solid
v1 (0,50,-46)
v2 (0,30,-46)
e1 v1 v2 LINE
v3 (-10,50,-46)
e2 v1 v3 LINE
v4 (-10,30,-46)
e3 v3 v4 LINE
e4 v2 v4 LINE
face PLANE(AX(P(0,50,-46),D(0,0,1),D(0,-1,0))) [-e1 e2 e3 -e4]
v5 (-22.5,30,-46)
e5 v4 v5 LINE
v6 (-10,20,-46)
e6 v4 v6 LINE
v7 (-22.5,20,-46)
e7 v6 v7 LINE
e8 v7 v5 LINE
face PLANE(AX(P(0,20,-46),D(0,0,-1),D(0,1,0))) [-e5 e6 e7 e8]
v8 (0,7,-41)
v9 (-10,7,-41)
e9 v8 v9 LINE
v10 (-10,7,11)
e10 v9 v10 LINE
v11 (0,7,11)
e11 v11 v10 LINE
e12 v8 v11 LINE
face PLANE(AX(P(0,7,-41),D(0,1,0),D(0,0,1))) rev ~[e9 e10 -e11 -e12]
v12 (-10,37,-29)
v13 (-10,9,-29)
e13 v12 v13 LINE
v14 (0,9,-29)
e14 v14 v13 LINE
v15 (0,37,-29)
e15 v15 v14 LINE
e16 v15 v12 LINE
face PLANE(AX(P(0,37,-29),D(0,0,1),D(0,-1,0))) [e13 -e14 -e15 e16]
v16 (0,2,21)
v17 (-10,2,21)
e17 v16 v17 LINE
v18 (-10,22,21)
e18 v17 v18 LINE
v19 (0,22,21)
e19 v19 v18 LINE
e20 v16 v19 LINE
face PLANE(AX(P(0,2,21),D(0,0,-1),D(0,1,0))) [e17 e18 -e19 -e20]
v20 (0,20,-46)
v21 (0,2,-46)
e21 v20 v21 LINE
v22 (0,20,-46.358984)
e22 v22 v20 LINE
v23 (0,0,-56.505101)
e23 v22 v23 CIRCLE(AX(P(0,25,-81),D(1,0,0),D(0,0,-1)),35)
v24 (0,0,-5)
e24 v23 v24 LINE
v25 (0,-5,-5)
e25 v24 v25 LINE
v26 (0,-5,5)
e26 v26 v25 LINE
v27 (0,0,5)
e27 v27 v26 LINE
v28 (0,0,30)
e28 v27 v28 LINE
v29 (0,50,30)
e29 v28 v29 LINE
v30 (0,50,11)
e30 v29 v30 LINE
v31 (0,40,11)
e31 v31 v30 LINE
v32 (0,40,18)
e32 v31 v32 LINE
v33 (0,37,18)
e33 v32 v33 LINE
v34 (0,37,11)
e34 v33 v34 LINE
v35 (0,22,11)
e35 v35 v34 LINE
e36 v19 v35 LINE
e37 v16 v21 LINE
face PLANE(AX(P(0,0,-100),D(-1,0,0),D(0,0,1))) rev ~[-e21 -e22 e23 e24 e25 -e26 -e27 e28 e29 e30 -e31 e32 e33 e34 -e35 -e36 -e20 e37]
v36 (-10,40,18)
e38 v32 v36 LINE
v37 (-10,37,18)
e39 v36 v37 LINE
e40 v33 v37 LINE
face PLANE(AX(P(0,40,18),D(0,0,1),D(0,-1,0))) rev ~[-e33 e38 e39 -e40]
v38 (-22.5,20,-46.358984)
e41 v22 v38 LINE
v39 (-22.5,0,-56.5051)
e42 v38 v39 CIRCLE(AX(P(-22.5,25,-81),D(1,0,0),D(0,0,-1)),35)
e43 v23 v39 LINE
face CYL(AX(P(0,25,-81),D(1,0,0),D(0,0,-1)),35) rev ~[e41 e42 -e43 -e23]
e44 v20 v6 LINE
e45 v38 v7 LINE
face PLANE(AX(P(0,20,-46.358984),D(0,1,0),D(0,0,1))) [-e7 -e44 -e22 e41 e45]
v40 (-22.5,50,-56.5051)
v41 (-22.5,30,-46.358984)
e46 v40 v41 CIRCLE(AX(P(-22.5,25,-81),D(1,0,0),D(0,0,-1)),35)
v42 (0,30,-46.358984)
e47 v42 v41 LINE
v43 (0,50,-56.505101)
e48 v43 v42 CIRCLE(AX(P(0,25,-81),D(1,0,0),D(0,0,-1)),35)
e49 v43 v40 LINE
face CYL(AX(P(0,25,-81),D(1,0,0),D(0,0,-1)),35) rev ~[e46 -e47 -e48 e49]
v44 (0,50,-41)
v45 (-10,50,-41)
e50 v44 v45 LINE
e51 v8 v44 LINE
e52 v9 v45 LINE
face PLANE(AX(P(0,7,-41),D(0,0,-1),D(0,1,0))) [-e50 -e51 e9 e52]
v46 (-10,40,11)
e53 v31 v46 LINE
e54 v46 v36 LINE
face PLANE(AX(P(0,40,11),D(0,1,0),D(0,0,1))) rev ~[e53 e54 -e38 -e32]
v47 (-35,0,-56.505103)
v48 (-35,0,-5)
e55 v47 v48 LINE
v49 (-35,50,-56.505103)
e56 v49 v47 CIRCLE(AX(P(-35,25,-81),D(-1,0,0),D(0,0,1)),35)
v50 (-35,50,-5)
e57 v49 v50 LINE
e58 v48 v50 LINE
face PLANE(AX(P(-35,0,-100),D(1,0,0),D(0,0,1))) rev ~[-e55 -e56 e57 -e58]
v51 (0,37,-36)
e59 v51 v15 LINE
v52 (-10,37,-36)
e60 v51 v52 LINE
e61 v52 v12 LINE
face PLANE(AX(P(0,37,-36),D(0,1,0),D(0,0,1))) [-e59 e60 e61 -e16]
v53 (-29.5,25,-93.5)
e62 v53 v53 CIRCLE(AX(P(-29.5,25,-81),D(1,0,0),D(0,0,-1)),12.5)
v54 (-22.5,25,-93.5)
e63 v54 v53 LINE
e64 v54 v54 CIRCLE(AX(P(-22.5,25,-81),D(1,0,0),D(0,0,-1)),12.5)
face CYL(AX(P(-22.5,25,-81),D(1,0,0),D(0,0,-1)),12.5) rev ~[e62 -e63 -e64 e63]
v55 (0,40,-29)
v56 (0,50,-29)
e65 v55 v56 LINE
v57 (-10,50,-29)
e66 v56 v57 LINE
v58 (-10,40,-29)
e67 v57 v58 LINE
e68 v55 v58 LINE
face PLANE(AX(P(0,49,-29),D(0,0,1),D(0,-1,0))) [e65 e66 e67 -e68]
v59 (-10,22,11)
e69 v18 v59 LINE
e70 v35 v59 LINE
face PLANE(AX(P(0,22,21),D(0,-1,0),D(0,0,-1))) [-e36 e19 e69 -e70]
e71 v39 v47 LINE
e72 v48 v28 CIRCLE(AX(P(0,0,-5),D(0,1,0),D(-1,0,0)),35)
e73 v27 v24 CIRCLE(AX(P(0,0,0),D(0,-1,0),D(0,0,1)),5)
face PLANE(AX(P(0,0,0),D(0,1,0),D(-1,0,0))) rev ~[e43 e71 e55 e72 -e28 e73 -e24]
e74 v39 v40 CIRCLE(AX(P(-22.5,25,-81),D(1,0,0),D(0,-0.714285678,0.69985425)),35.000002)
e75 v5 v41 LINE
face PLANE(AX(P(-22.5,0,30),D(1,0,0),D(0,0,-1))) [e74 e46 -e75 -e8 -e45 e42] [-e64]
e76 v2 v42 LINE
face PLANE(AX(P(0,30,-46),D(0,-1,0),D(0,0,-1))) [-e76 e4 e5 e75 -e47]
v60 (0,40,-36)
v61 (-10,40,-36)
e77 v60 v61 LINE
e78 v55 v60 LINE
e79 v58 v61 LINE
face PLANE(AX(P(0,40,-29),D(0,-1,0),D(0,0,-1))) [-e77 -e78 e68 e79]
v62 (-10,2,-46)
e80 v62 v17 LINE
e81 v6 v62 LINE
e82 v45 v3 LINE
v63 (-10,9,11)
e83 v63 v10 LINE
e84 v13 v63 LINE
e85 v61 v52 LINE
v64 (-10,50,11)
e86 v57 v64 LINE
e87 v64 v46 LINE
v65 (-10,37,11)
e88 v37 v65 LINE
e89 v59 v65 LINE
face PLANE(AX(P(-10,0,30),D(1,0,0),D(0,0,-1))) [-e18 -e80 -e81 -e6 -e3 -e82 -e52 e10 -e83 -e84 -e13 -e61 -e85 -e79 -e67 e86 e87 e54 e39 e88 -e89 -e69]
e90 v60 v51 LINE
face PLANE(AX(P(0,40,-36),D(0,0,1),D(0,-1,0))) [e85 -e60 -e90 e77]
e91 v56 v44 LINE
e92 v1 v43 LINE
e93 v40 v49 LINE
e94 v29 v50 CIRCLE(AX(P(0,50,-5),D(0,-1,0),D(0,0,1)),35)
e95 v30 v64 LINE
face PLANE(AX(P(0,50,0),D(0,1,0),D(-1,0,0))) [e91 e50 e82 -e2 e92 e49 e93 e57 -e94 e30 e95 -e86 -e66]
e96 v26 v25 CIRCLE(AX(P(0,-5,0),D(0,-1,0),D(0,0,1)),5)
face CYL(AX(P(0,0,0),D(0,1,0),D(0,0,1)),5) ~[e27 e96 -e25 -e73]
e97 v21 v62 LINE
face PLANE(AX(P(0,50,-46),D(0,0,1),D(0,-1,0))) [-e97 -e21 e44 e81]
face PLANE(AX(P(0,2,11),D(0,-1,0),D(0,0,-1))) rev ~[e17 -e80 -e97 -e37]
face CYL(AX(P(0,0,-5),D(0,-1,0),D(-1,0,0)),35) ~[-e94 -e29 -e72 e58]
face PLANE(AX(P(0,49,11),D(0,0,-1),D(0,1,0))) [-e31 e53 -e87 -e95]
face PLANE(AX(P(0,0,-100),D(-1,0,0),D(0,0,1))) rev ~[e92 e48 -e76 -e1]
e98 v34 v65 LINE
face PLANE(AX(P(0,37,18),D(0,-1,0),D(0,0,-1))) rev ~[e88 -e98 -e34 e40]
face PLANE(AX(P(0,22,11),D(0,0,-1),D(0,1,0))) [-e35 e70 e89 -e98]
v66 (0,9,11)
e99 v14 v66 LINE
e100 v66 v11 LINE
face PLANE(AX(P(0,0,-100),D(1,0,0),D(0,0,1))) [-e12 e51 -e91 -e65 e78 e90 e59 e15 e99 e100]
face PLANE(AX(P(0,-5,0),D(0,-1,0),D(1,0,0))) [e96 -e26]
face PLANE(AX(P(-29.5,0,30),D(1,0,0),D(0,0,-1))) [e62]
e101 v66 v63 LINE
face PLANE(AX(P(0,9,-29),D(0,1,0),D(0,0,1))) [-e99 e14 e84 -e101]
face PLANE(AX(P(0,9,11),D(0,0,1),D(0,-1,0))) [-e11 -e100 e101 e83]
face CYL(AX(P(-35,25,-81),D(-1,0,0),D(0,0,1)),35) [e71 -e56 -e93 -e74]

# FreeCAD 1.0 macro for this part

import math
import FreeCAD as App
import Part
import Sketcher

V = App.Vector

doc = App.newDocument("Part")
body = doc.addObject("PartDesign::Body", "Body")

# Sketch on XZ plane
sketch1 = body.newObject("Sketcher::SketchObject", "Sketch")
sketch1.AttachmentSupport = (doc.getObject("XZ_Plane"), [""])
sketch1.MapMode = "FlatFace"
sketch1.addGeometry([
    Part.LineSegment(V(-35, -100, 0), V(-35, -5, 0)),
    Part.ArcOfCircle(Part.Circle(V(0, -5, 0), V(0, 0, 1), 35), math.radians(90), math.radians(180)),
    Part.LineSegment(V(0, 30, 0), V(0, -100, 0)),
    Part.LineSegment(V(0, -100, 0), V(-35, -100, 0)),
], False)
sketch1.addConstraint([
    Sketcher.Constraint("Tangent", 0, 2, 1, 2),
    Sketcher.Constraint("Coincident", 1, 1, 2, 1),
    Sketcher.Constraint("Coincident", 2, 2, 3, 1),
    Sketcher.Constraint("Coincident", 3, 2, 0, 1),
    Sketcher.Constraint("Vertical", 0),
    Sketcher.Constraint("Vertical", 2),
    Sketcher.Constraint("Horizontal", 3),
    Sketcher.Constraint("PointOnObject", 1, 3, -2),
    Sketcher.Constraint("PointOnObject", 1, 1, -2),
    Sketcher.Constraint("Radius", 1, 35.0),
    Sketcher.Constraint("DistanceY", 2, 2, 2, 1, 130.0),
    Sketcher.Constraint("DistanceY", 1, 3, -1, 1, 5.0),
])
pad1 = body.newObject("PartDesign::Pad", "Pad")
pad1.Profile = sketch1
pad1.Length = 50
pad1.Reversed = True

# Sketch on YZ plane
sketch2 = body.newObject("Sketcher::SketchObject", "Sketch001")
sketch2.AttachmentSupport = (doc.getObject("YZ_Plane"), [""])
sketch2.MapMode = "FlatFace"
sketch2.addGeometry([
    Part.LineSegment(V(50, 11, 0), V(40, 11, 0)),  # 0
    Part.LineSegment(V(40, 11, 0), V(40, 18, 0)),  # 1
    Part.LineSegment(V(40, 18, 0), V(37, 18, 0)),  # 2
    Part.LineSegment(V(37, 18, 0), V(37, 11, 0)),  # 3
    Part.LineSegment(V(37, 11, 0), V(22, 11, 0)),  # 4
    Part.LineSegment(V(22, 11, 0), V(22, 21, 0)),  # 5
    Part.LineSegment(V(22, 21, 0), V(2, 21, 0)),  # 6
    Part.LineSegment(V(2, 21, 0), V(2, -46, 0)),  # 7
    Part.LineSegment(V(2, -46, 0), V(50, -46, 0)),  # 8
    Part.LineSegment(V(50, -46, 0), V(50, -41, 0)),  # 9
    Part.LineSegment(V(50, -41, 0), V(7, -41, 0)),  # 10
    Part.LineSegment(V(7, -41, 0), V(7, 11, 0)),  # 11
    Part.LineSegment(V(7, 11, 0), V(9, 11, 0)),  # 12
    Part.LineSegment(V(9, 11, 0), V(9, -29, 0)),  # 13
    Part.LineSegment(V(9, -29, 0), V(37, -29, 0)),  # 14
    Part.LineSegment(V(37, -29, 0), V(37, -36, 0)),  # 15
    Part.LineSegment(V(37, -36, 0), V(40, -36, 0)),  # 16
    Part.LineSegment(V(40, -36, 0), V(40, -29, 0)),  # 17
    Part.LineSegment(V(40, -29, 0), V(50, -29, 0)),  # 18
    Part.LineSegment(V(50, -29, 0), V(50, 11, 0)),  # 19
], False)
sketch2.addConstraint([
    Sketcher.Constraint("Coincident", 0, 2, 1, 1),
    Sketcher.Constraint("Coincident", 1, 2, 2, 1),
    Sketcher.Constraint("Coincident", 2, 2, 3, 1),
    Sketcher.Constraint("Coincident", 3, 2, 4, 1),
    Sketcher.Constraint("Coincident", 4, 2, 5, 1),
    Sketcher.Constraint("Coincident", 5, 2, 6, 1),
    Sketcher.Constraint("Coincident", 6, 2, 7, 1),
    Sketcher.Constraint("Coincident", 7, 2, 8, 1),
    Sketcher.Constraint("Coincident", 8, 2, 9, 1),
    Sketcher.Constraint("Coincident", 9, 2, 10, 1),
    Sketcher.Constraint("Coincident", 10, 2, 11, 1),
    Sketcher.Constraint("Coincident", 11, 2, 12, 1),
    Sketcher.Constraint("Coincident", 12, 2, 13, 1),
    Sketcher.Constraint("Coincident", 13, 2, 14, 1),
    Sketcher.Constraint("Coincident", 14, 2, 15, 1),
    Sketcher.Constraint("Coincident", 15, 2, 16, 1),
    Sketcher.Constraint("Coincident", 16, 2, 17, 1),
    Sketcher.Constraint("Coincident", 17, 2, 18, 1),
    Sketcher.Constraint("Coincident", 18, 2, 19, 1),
    Sketcher.Constraint("Coincident", 19, 2, 0, 1),
    Sketcher.Constraint("Horizontal", 0),
    Sketcher.Constraint("Vertical", 1),
    Sketcher.Constraint("Horizontal", 2),
    Sketcher.Constraint("Vertical", 3),
    Sketcher.Constraint("Horizontal", 4),
    Sketcher.Constraint("Vertical", 5),
    Sketcher.Constraint("Horizontal", 6),
    Sketcher.Constraint("Vertical", 7),
    Sketcher.Constraint("Horizontal", 8),
    Sketcher.Constraint("Vertical", 9),
    Sketcher.Constraint("Horizontal", 10),
    Sketcher.Constraint("Vertical", 11),
    Sketcher.Constraint("Horizontal", 12),
    Sketcher.Constraint("Vertical", 13),
    Sketcher.Constraint("Horizontal", 14),
    Sketcher.Constraint("Vertical", 15),
    Sketcher.Constraint("Horizontal", 16),
    Sketcher.Constraint("Vertical", 17),
    Sketcher.Constraint("Horizontal", 18),
    Sketcher.Constraint("Vertical", 19),
    Sketcher.Constraint("Horizontal", 0, 2, 3, 2),
    Sketcher.Constraint("Horizontal", 4, 2, 11, 2),
    Sketcher.Constraint("Horizontal", 14, 2, 17, 2),
    Sketcher.Constraint("Vertical", 3, 2, 14, 2),
    Sketcher.Constraint("Vertical", 1, 2, 16, 2),
    Sketcher.Constraint("Vertical", 9, 2, 18, 2),
    Sketcher.Constraint("Equal", 18, 5),
    Sketcher.Constraint("Equal", 3, 15),
    Sketcher.Constraint("DistanceX", 0, 2, 0, 1, 10.0),
    Sketcher.Constraint("DistanceX", 2, 2, 2, 1, 3.0),
    Sketcher.Constraint("DistanceX", 6, 2, 6, 1, 20.0),
    Sketcher.Constraint("DistanceX", 8, 1, 8, 2, 48.0),
    Sketcher.Constraint("DistanceY", 1, 1, 1, 2, 7.0),
    Sketcher.Constraint("DistanceY", 9, 1, 9, 2, 5.0),
    Sketcher.Constraint("DistanceY", 13, 2, 13, 1, 40.0),
    Sketcher.Constraint("DistanceX", -1, 1, 0, 2, 40.0),
    Sketcher.Constraint("DistanceX", -1, 1, 10, 2, 7.0),
    Sketcher.Constraint("DistanceX", -1, 1, 12, 2, 9.0),
    Sketcher.Constraint("DistanceY", 15, 2, -1, 1, 36.0),
    Sketcher.Constraint("DistanceY", 7, 2, 4, 2, 57.0),
])
pocket1 = body.newObject("PartDesign::Pocket", "Pocket")
pocket1.Profile = sketch2
pocket1.Length = 10

# Sketch on YZ plane
sketch3 = body.newObject("Sketcher::SketchObject", "Sketch002")
sketch3.AttachmentSupport = (doc.getObject("YZ_Plane"), [""])
sketch3.MapMode = "FlatFace"
sketch3.AttachmentOffset = App.Placement(V(0, 0, -35), App.Rotation())
sketch3.addGeometry(Part.Circle(V(25, -81, 0), V(0, 0, 1), 35), False)
sketch3.addConstraint([
    Sketcher.Constraint("Diameter", 0, 70.0),
    Sketcher.Constraint("DistanceX", -1, 1, 0, 3, 25.0),
    Sketcher.Constraint("DistanceY", 0, 3, -1, 1, 81.0),
])
pad2 = body.newObject("PartDesign::Pad", "Pad001")
pad2.Profile = sketch3
pad2.Length = 35

# Sketch on XZ plane
sketch4 = body.newObject("Sketcher::SketchObject", "Sketch003")
sketch4.AttachmentSupport = (doc.getObject("XZ_Plane"), [""])
sketch4.MapMode = "FlatFace"
sketch4.addGeometry([
    Part.LineSegment(V(0, -5, 0), V(0, 5, 0)),
    Part.ArcOfCircle(Part.Circle(V(0, 0, 0), V(0, 0, 1), 5), math.radians(90), math.radians(270)),
], False)
sketch4.addConstraint([
    Sketcher.Constraint("Coincident", 0, 1, 1, 2),
    Sketcher.Constraint("Coincident", 1, 1, 0, 2),
    Sketcher.Constraint("Vertical", 0),
    Sketcher.Constraint("Coincident", 1, 3, -1, 1),
    Sketcher.Constraint("PointOnObject", 0, 1, -2),
    Sketcher.Constraint("Radius", 1, 5.0),
])
pad3 = body.newObject("PartDesign::Pad", "Pad002")
pad3.Profile = sketch4
pad3.Length = 5

# Sketch on YZ plane
sketch5 = body.newObject("Sketcher::SketchObject", "Sketch004")
sketch5.AttachmentSupport = (doc.getObject("YZ_Plane"), [""])
sketch5.MapMode = "FlatFace"
sketch5.addGeometry([
    Part.ArcOfCircle(Part.Circle(V(25, -81, 0), V(0, 0, 1), 35), math.radians(98), math.radians(442)),
    Part.LineSegment(V(30, -46.36, 0), V(30, -46, 0)),
    Part.LineSegment(V(30, -46, 0), V(20, -46, 0)),
    Part.LineSegment(V(20, -46, 0), V(20, -46.36, 0)),
], False)
sketch5.addConstraint([
    Sketcher.Constraint("Coincident", 0, 2, 1, 1),
    Sketcher.Constraint("Coincident", 1, 2, 2, 1),
    Sketcher.Constraint("Coincident", 2, 2, 3, 1),
    Sketcher.Constraint("Coincident", 3, 2, 0, 1),
    Sketcher.Constraint("Vertical", 1),
    Sketcher.Constraint("Horizontal", 2),
    Sketcher.Constraint("Vertical", 3),
    Sketcher.Constraint("Horizontal", 0, 2, 3, 2),
    Sketcher.Constraint("DistanceX", 2, 2, 2, 1, 10.0),
    Sketcher.Constraint("Radius", 0, 35.0),
    Sketcher.Constraint("DistanceX", -1, 1, 0, 3, 25.0),
    Sketcher.Constraint("DistanceY", 0, 3, -1, 1, 81.0),
    Sketcher.Constraint("DistanceY", 1, 2, -1, 1, 46.0),
])
pocket2 = body.newObject("PartDesign::Pocket", "Pocket001")
pocket2.Profile = sketch5
pocket2.Length = 22.5

# Sketch on YZ plane
sketch6 = body.newObject("Sketcher::SketchObject", "Sketch005")
sketch6.AttachmentSupport = (doc.getObject("YZ_Plane"), [""])
sketch6.MapMode = "FlatFace"
sketch6.AttachmentOffset = App.Placement(V(0, 0, -22.5), App.Rotation())
sketch6.addGeometry(Part.Circle(V(25, -81, 0), V(0, 0, 1), 12), False)
sketch6.addConstraint([
    Sketcher.Constraint("Diameter", 0, 25.0),
    Sketcher.Constraint("DistanceX", -1, 1, 0, 3, 25.0),
    Sketcher.Constraint("DistanceY", 0, 3, -1, 1, 81.0),
])
pocket3 = body.newObject("PartDesign::Pocket", "Pocket002")
pocket3.Profile = sketch6
pocket3.Length = 7

doc.recompute()
